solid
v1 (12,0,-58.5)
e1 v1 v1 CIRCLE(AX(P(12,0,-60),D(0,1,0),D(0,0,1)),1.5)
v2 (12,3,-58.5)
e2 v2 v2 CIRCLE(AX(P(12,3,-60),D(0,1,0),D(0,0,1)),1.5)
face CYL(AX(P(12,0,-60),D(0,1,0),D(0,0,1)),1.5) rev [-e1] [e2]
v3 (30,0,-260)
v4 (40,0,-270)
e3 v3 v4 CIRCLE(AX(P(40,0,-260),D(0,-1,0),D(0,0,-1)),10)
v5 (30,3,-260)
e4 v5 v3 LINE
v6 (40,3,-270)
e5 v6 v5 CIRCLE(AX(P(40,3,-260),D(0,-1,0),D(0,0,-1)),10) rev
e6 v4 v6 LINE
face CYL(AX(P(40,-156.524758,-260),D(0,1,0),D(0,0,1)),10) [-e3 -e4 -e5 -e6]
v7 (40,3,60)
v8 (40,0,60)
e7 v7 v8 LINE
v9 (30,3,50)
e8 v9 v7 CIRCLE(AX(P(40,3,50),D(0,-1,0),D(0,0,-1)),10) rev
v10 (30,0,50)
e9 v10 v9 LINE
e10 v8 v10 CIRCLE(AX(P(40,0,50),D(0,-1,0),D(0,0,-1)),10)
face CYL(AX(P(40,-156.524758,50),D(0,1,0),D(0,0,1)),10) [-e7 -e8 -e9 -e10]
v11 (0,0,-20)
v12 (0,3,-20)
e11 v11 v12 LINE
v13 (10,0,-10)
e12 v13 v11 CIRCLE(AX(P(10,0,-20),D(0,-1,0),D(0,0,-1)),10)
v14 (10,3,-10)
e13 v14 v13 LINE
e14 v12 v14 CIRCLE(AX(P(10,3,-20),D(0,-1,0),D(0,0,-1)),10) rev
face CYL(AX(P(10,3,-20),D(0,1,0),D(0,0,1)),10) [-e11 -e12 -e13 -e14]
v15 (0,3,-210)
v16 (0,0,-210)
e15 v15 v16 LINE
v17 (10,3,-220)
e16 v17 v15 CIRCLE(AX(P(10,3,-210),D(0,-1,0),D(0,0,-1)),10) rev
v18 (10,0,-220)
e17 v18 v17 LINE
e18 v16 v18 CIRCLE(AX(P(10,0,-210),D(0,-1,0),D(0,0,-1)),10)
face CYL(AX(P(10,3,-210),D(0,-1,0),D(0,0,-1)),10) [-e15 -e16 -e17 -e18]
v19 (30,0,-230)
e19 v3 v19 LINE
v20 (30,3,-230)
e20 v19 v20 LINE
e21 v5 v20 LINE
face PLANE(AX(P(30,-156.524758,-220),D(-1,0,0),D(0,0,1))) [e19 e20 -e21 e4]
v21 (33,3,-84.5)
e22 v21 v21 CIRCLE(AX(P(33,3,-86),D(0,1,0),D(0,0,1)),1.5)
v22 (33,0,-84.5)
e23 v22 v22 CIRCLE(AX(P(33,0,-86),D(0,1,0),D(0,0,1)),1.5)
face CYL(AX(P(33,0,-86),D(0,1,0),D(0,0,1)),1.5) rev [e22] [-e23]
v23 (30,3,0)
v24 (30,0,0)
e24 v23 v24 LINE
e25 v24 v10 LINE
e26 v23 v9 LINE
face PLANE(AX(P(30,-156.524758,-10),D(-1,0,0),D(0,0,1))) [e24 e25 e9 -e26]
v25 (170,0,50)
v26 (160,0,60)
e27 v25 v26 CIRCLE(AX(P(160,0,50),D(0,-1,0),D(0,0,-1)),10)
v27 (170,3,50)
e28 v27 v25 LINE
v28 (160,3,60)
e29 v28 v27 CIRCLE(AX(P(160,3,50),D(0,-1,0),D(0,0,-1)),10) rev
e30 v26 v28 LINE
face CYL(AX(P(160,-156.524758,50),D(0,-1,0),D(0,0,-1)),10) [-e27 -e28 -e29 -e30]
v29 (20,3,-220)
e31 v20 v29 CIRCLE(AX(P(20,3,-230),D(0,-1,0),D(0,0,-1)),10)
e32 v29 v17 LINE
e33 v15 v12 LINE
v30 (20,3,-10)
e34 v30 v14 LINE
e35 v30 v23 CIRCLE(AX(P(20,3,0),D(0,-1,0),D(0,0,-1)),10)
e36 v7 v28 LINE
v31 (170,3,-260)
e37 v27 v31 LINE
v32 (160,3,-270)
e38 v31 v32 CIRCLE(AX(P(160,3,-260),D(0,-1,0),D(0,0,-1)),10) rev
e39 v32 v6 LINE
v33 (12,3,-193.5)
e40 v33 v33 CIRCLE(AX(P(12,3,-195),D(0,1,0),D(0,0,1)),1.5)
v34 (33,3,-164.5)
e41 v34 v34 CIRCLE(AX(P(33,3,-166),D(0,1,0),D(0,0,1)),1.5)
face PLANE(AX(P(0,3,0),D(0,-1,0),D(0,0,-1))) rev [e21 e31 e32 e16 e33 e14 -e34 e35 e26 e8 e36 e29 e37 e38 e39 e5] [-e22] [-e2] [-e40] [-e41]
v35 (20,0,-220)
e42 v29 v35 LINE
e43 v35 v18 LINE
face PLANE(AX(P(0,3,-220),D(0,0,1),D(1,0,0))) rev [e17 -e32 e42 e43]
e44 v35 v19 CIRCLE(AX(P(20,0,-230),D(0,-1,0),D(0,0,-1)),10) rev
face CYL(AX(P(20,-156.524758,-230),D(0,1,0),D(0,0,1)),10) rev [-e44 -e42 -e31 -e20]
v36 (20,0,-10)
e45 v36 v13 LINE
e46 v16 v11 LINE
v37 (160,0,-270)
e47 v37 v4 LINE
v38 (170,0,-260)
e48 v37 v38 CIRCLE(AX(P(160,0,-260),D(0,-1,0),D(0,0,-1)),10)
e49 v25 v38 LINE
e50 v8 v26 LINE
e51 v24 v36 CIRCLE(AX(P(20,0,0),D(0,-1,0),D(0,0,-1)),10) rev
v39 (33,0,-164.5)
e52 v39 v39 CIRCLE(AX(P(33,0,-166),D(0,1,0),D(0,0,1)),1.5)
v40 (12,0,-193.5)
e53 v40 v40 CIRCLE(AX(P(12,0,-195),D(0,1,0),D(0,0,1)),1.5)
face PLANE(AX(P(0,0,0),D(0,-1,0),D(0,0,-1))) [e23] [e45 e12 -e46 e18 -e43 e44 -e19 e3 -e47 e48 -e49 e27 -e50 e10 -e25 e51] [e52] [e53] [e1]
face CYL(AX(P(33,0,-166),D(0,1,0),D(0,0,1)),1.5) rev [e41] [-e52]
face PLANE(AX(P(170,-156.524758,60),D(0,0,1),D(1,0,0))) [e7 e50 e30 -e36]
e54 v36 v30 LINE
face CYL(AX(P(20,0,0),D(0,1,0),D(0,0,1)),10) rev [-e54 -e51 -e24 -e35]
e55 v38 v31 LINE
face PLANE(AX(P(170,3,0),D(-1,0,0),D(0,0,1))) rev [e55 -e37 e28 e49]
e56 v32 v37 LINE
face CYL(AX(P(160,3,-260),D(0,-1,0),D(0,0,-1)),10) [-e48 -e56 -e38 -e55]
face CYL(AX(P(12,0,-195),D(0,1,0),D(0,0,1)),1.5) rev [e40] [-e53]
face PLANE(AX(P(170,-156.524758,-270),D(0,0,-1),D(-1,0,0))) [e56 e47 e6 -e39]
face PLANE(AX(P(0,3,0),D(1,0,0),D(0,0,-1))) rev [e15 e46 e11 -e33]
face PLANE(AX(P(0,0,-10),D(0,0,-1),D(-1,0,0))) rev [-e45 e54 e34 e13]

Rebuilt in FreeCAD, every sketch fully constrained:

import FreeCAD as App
import Part
import Sketcher

V = App.Vector


def edges_at(feature, points):
    """Names of the edges that pass closest to the given points."""
    edges = feature.Shape.Edges
    near = lambda p: min(range(len(edges)), key=lambda i: edges[i].distToShape(Part.Vertex(*p))[0])
    return sorted({f"Edge{near(p) + 1}" for p in points})

doc = App.newDocument("Part")
body = doc.addObject("PartDesign::Body", "Body")

# Sketch on XZ plane
sketch1 = body.newObject("Sketcher::SketchObject", "Sketch")
sketch1.AttachmentSupport = (doc.getObject("XZ_Plane"), [""])
sketch1.MapMode = "FlatFace"
sketch1.addGeometry(Part.LineSegment(V(0, -220, 0), V(0, 0, 0)), False)
sketch1.addGeometry(Part.LineSegment(V(0, 0, 0), V(170, 0, 0)), False)
sketch1.addGeometry(Part.LineSegment(V(170, 0, 0), V(170, -220, 0)), False)
sketch1.addGeometry(Part.LineSegment(V(170, -220, 0), V(0, -220, 0)), False)
sketch1.addConstraint(Sketcher.Constraint("Coincident", 0, 2, 1, 1))
sketch1.addConstraint(Sketcher.Constraint("Coincident", 1, 2, 2, 1))
sketch1.addConstraint(Sketcher.Constraint("Coincident", 2, 2, 3, 1))
sketch1.addConstraint(Sketcher.Constraint("Coincident", 3, 2, 0, 1))
sketch1.addConstraint(Sketcher.Constraint("Vertical", 0))
sketch1.addConstraint(Sketcher.Constraint("Horizontal", 1))
sketch1.addConstraint(Sketcher.Constraint("Vertical", 2))
sketch1.addConstraint(Sketcher.Constraint("Horizontal", 3))
sketch1.addConstraint(Sketcher.Constraint("Coincident", 0, 2, -1, 1))
sketch1.addConstraint(Sketcher.Constraint("DistanceX", 1, 1, 1, 2, 170.0))
sketch1.addConstraint(Sketcher.Constraint("DistanceY", 0, 1, 0, 2, 220.0))
pad1 = body.newObject("PartDesign::Pad", "Pad")
pad1.Profile = sketch1
pad1.Length = 3
pad1.Reversed = True

# Sketch on XZ plane
sketch2 = body.newObject("Sketcher::SketchObject", "Sketch001")
sketch2.AttachmentSupport = (doc.getObject("XZ_Plane"), [""])
sketch2.MapMode = "FlatFace"
sketch2.AttachmentOffset = App.Placement(V(0, 0, -3), App.Rotation())
sketch2.addGeometry(Part.Circle(V(33, -86, 0), V(0, 0, 1), 1.5), False)
sketch2.addGeometry(Part.Circle(V(33, -166, 0), V(0, 0, 1), 1.5), False)
sketch2.addConstraint(Sketcher.Constraint("Equal", 0, 1))
sketch2.addConstraint(Sketcher.Constraint("Vertical", 0, 3, 1, 3))
sketch2.addConstraint(Sketcher.Constraint("Diameter", 0, 3.0))
sketch2.addConstraint(Sketcher.Constraint("DistanceX", -1, 1, 0, 3, 33.0))
sketch2.addConstraint(Sketcher.Constraint("DistanceY", 0, 3, -1, 1, 86.0))
sketch2.addConstraint(Sketcher.Constraint("DistanceY", 1, 3, -1, 1, 166.0))
pocket1 = body.newObject("PartDesign::Pocket", "Pocket")
pocket1.Profile = sketch2
pocket1.Type = "ThroughAll"
pocket1.Reversed = True

# Sketch on XZ plane
sketch3 = body.newObject("Sketcher::SketchObject", "Sketch002")
sketch3.AttachmentSupport = (doc.getObject("XZ_Plane"), [""])
sketch3.MapMode = "FlatFace"
sketch3.AttachmentOffset = App.Placement(V(0, 0, -3), App.Rotation())
sketch3.addGeometry(Part.Circle(V(12, -195, 0), V(0, 0, 1), 1.5), False)
sketch3.addGeometry(Part.Circle(V(12, -60, 0), V(0, 0, 1), 1.5), False)
sketch3.addConstraint(Sketcher.Constraint("Equal", 0, 1))
sketch3.addConstraint(Sketcher.Constraint("Vertical", 0, 3, 1, 3))
sketch3.addConstraint(Sketcher.Constraint("Diameter", 0, 3.0))
sketch3.addConstraint(Sketcher.Constraint("DistanceX", -1, 1, 0, 3, 12.0))
sketch3.addConstraint(Sketcher.Constraint("DistanceY", 0, 3, -1, 1, 195.0))
sketch3.addConstraint(Sketcher.Constraint("DistanceY", 1, 3, -1, 1, 60.0))
pocket2 = body.newObject("PartDesign::Pocket", "Pocket001")
pocket2.Profile = sketch3
pocket2.Type = "ThroughAll"
pocket2.Reversed = True

# Sketch on XZ plane
sketch4 = body.newObject("Sketcher::SketchObject", "Sketch003")
sketch4.AttachmentSupport = (doc.getObject("XZ_Plane"), [""])
sketch4.MapMode = "FlatFace"
sketch4.AttachmentOffset = App.Placement(V(0, 0, -3), App.Rotation())
sketch4.addGeometry(Part.LineSegment(V(0, -10, 0), V(0, 0, 0)), False)
sketch4.addGeometry(Part.LineSegment(V(0, 0, 0), V(170, 0, 0)), False)
sketch4.addGeometry(Part.LineSegment(V(170, 0, 0), V(170, -10, 0)), False)
sketch4.addGeometry(Part.LineSegment(V(170, -10, 0), V(0, -10, 0)), False)
sketch4.addConstraint(Sketcher.Constraint("Coincident", 0, 2, 1, 1))
sketch4.addConstraint(Sketcher.Constraint("Coincident", 1, 2, 2, 1))
sketch4.addConstraint(Sketcher.Constraint("Coincident", 2, 2, 3, 1))
sketch4.addConstraint(Sketcher.Constraint("Coincident", 3, 2, 0, 1))
sketch4.addConstraint(Sketcher.Constraint("Vertical", 0))
sketch4.addConstraint(Sketcher.Constraint("Horizontal", 1))
sketch4.addConstraint(Sketcher.Constraint("Vertical", 2))
sketch4.addConstraint(Sketcher.Constraint("Horizontal", 3))
sketch4.addConstraint(Sketcher.Constraint("Coincident", 0, 2, -1, 1))
sketch4.addConstraint(Sketcher.Constraint("DistanceX", 1, 1, 1, 2, 170.0))
sketch4.addConstraint(Sketcher.Constraint("DistanceY", 0, 1, 0, 2, 10.0))
pocket3 = body.newObject("PartDesign::Pocket", "Pocket002")
pocket3.Profile = sketch4
pocket3.Type = "ThroughAll"
pocket3.Reversed = True

# Sketch on XZ plane
sketch5 = body.newObject("Sketcher::SketchObject", "Sketch004")
sketch5.AttachmentSupport = (doc.getObject("XZ_Plane"), [""])
sketch5.MapMode = "FlatFace"
sketch5.AttachmentOffset = App.Placement(V(0, 0, -3), App.Rotation())
sketch5.addGeometry(Part.LineSegment(V(30, -270, 0), V(30, -220, 0)), False)
sketch5.addGeometry(Part.LineSegment(V(30, -220, 0), V(170, -220, 0)), False)
sketch5.addGeometry(Part.LineSegment(V(170, -220, 0), V(170, -270, 0)), False)
sketch5.addGeometry(Part.LineSegment(V(170, -270, 0), V(30, -270, 0)), False)
sketch5.addGeometry(Part.LineSegment(V(30, -10, 0), V(30, 60, 0)), False)
sketch5.addGeometry(Part.LineSegment(V(30, 60, 0), V(170, 60, 0)), False)
sketch5.addGeometry(Part.LineSegment(V(170, 60, 0), V(170, -10, 0)), False)
sketch5.addGeometry(Part.LineSegment(V(170, -10, 0), V(30, -10, 0)), False)
sketch5.addConstraint(Sketcher.Constraint("Coincident", 0, 2, 1, 1))
sketch5.addConstraint(Sketcher.Constraint("Coincident", 1, 2, 2, 1))
sketch5.addConstraint(Sketcher.Constraint("Coincident", 2, 2, 3, 1))
sketch5.addConstraint(Sketcher.Constraint("Coincident", 3, 2, 0, 1))
sketch5.addConstraint(Sketcher.Constraint("Coincident", 4, 2, 5, 1))
sketch5.addConstraint(Sketcher.Constraint("Coincident", 5, 2, 6, 1))
sketch5.addConstraint(Sketcher.Constraint("Coincident", 6, 2, 7, 1))
sketch5.addConstraint(Sketcher.Constraint("Coincident", 7, 2, 4, 1))
sketch5.addConstraint(Sketcher.Constraint("Vertical", 0))
sketch5.addConstraint(Sketcher.Constraint("Horizontal", 1))
sketch5.addConstraint(Sketcher.Constraint("Vertical", 2))
sketch5.addConstraint(Sketcher.Constraint("Horizontal", 3))
sketch5.addConstraint(Sketcher.Constraint("Vertical", 4))
sketch5.addConstraint(Sketcher.Constraint("Horizontal", 5))
sketch5.addConstraint(Sketcher.Constraint("Vertical", 6))
sketch5.addConstraint(Sketcher.Constraint("Horizontal", 7))
sketch5.addConstraint(Sketcher.Constraint("Vertical", 3, 2, 4, 2))
sketch5.addConstraint(Sketcher.Constraint("Vertical", 2, 2, 5, 2))
sketch5.addConstraint(Sketcher.Constraint("DistanceX", 1, 1, 1, 2, 140.0))
sketch5.addConstraint(Sketcher.Constraint("DistanceY", 0, 1, 0, 2, 50.0))
sketch5.addConstraint(Sketcher.Constraint("DistanceY", 4, 1, 4, 2, 70.0))
sketch5.addConstraint(Sketcher.Constraint("DistanceX", -1, 1, 0, 2, 30.0))
sketch5.addConstraint(Sketcher.Constraint("DistanceY", 0, 2, -1, 1, 220.0))
sketch5.addConstraint(Sketcher.Constraint("DistanceY", -1, 1, 4, 2, 60.0))
pad2 = body.newObject("PartDesign::Pad", "Pad001")
pad2.Profile = sketch5
pad2.Length = 3
doc.recompute()

fillet = body.newObject("PartDesign::Fillet", "Fillet")
fillet.Base = (pad2, edges_at(pad2, [
    (0, 1.5, -10),
    (30, 1.5, -270),
    (30, 1.5, -220),
    (170, 1.5, -270),
    (30, 1.5, -10),
    (30, 1.5, 60),
    (170, 1.5, 60),
    (0, 1.5, -220),
]))
fillet.Radius = 10

doc.recompute()
